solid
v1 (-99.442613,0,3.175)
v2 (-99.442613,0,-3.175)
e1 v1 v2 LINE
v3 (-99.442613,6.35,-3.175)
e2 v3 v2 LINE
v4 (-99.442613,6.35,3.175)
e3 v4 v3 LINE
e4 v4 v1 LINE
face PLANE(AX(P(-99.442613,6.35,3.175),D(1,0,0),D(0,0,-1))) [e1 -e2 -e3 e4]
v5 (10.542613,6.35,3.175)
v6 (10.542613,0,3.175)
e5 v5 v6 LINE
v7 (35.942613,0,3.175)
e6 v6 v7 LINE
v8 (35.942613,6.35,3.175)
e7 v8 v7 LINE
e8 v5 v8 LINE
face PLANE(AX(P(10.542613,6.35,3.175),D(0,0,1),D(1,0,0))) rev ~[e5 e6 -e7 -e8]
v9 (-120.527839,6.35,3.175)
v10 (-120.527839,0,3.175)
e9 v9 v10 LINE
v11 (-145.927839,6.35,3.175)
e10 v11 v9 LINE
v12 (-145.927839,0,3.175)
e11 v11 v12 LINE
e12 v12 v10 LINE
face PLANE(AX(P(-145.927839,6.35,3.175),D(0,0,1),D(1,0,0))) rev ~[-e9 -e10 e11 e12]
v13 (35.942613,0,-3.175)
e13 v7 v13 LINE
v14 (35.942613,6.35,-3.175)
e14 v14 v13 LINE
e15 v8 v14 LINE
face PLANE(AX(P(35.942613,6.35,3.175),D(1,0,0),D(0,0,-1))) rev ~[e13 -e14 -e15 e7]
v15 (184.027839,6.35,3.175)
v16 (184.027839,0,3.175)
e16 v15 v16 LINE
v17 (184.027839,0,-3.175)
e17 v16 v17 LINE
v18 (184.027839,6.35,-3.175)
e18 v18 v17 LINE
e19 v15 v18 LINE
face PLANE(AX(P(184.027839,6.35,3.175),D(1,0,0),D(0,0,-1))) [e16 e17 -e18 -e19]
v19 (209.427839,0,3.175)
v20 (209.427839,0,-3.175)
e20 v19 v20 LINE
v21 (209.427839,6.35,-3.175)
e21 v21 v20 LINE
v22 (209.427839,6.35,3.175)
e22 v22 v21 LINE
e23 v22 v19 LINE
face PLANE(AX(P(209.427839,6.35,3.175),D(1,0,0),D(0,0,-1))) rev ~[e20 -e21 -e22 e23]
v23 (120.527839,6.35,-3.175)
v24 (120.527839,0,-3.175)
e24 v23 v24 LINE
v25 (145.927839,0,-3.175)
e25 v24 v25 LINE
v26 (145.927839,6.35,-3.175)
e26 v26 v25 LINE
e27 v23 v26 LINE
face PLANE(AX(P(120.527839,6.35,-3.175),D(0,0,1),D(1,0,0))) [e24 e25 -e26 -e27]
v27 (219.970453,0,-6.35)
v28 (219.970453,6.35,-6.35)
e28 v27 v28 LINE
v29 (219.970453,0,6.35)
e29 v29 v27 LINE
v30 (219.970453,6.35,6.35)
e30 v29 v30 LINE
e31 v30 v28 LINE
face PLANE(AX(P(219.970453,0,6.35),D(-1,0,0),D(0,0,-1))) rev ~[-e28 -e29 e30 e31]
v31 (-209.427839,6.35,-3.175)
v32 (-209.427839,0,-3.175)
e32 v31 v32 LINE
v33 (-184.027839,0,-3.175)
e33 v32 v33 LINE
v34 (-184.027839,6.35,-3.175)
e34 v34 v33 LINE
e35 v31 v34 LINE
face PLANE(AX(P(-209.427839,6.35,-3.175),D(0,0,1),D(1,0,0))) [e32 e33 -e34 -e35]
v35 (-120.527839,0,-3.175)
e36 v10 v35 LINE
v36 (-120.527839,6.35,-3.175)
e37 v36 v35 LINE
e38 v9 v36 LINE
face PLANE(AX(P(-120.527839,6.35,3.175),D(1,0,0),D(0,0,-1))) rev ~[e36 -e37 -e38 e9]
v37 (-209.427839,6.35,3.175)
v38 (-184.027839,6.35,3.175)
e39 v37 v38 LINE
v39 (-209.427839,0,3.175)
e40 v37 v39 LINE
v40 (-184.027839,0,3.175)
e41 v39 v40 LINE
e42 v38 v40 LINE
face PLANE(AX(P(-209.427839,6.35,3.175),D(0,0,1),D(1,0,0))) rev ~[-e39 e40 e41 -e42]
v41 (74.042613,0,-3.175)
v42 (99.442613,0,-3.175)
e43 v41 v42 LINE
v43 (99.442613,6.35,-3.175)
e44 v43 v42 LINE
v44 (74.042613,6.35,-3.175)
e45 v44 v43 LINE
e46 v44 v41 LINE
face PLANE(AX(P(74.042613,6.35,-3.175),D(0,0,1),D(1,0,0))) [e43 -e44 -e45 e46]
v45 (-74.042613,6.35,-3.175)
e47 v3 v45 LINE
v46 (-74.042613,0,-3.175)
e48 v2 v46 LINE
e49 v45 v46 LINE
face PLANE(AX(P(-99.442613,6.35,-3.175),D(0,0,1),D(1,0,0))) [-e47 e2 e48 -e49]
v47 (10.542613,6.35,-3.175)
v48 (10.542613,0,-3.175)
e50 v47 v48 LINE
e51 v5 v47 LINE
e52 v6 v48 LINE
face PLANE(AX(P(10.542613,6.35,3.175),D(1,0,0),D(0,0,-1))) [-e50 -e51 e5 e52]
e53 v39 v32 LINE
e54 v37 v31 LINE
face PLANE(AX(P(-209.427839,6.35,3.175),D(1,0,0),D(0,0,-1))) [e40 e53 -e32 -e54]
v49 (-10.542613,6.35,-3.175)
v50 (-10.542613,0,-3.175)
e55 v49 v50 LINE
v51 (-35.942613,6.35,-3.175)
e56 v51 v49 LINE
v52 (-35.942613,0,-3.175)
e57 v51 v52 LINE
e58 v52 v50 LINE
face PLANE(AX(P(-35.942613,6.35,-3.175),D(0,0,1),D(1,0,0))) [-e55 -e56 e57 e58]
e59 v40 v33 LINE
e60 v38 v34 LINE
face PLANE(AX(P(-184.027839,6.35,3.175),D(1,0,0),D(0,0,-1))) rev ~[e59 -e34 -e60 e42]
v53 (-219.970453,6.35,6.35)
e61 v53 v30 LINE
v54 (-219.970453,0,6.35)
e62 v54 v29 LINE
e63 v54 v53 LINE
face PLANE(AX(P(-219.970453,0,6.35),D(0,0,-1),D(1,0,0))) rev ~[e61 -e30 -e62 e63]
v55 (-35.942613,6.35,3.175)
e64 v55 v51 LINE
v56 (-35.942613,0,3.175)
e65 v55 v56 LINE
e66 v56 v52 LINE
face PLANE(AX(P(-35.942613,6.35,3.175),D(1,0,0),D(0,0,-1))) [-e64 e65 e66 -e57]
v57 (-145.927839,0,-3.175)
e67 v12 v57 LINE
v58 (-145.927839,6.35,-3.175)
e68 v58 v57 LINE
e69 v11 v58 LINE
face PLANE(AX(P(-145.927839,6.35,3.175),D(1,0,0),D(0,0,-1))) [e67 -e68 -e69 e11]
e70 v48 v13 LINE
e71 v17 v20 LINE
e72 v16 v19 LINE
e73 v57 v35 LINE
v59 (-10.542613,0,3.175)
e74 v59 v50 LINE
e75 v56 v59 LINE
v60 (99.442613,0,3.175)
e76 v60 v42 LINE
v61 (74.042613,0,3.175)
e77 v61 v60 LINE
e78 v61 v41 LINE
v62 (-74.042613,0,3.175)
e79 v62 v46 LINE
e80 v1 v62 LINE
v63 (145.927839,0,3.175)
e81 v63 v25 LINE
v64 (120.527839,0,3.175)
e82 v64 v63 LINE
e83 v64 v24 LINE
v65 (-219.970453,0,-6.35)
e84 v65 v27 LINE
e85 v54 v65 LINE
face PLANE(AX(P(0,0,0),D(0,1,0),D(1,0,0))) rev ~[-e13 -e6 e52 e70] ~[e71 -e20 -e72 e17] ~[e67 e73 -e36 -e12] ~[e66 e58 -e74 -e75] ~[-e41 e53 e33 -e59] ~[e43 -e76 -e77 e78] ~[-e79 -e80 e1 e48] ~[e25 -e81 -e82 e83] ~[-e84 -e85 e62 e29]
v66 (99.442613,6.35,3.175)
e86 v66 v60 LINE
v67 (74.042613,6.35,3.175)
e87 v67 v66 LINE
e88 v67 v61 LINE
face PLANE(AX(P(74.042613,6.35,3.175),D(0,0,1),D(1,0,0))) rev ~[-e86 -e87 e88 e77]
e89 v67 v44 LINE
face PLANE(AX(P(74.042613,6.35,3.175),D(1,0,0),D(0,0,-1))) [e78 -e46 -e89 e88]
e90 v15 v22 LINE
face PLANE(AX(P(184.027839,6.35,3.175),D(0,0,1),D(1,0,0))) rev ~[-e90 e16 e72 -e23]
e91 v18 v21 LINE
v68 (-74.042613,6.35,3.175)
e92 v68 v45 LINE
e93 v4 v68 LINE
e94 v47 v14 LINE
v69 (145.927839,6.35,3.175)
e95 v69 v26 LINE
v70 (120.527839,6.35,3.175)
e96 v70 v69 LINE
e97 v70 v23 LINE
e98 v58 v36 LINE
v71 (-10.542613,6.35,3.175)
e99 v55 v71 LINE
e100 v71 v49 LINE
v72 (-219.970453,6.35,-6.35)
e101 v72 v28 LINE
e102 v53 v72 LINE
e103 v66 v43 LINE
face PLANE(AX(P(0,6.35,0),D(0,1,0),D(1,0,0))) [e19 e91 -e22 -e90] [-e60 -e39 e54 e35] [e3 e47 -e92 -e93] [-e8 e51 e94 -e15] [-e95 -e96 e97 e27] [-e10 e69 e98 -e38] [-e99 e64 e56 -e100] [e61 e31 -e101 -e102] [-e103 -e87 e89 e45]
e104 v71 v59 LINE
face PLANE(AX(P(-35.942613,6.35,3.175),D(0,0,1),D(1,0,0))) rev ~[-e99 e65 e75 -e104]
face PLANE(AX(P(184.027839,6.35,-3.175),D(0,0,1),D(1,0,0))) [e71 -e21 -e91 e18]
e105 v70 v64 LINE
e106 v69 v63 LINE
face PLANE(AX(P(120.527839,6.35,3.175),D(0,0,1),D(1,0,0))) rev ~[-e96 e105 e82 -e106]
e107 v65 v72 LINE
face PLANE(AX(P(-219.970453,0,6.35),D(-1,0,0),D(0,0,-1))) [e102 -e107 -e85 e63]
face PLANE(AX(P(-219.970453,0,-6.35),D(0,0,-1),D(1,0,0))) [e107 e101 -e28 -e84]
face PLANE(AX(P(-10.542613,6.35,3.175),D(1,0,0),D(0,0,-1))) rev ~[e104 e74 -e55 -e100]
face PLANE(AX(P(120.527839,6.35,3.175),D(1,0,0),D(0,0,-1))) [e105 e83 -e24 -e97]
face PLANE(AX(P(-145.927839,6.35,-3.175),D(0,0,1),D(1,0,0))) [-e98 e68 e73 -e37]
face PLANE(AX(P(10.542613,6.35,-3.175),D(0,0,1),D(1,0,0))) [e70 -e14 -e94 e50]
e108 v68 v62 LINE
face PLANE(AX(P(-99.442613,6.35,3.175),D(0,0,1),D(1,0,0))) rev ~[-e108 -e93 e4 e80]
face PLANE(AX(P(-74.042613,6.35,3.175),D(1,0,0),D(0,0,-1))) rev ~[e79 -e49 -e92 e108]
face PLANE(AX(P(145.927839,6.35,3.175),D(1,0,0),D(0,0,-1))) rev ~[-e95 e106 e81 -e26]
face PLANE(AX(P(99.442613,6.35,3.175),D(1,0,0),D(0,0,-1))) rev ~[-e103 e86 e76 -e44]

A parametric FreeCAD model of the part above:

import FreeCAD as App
import Part
import Sketcher

V = App.Vector
Q = App.Units.Quantity


def add_polygon(sketch, points):
    """Adds a closed chain of lines whose ends are joined by coincident constraints."""
    first, n = sketch.GeometryCount, len(points)
    for a, b in zip(points, points[1:] + points[:1]):
        sketch.addGeometry(Part.LineSegment(App.Vector(*a, 0), App.Vector(*b, 0)), False)
    for i in range(n):
        sketch.addConstraint(Sketcher.Constraint("Coincident", first + i, 2, first + (i + 1) % n, 1))

doc = App.newDocument("Part")
body = doc.addObject("PartDesign::Body", "Body")

sketch1 = body.newObject("Sketcher::SketchObject", "Sketch")
sketch1.AttachmentSupport = (doc.getObject("XZ_Plane"), [""])
sketch1.MapMode = "FlatFace"
add_polygon(sketch1, [(-219.970453, -6.35), (-219.970453, 6.35), (219.970453, 6.35), (219.970453, -6.35)])
sketch1.addConstraint(Sketcher.Constraint("Vertical", 0))
sketch1.addConstraint(Sketcher.Constraint("Horizontal", 1))
sketch1.addConstraint(Sketcher.Constraint("Vertical", 2))
sketch1.addConstraint(Sketcher.Constraint("Horizontal", 3))
sketch1.addConstraint(Sketcher.Constraint("Symmetric", 0, 2, 2, 2, -1, 1))
sketch1.addConstraint(Sketcher.Constraint("DistanceY", 0, 1, 0, 2, Q("0.5 in")))
sketch1.addConstraint(Sketcher.Constraint("DistanceX", 1, 1, 1, 2, Q("439.940905 mm")))
pad1 = body.newObject("PartDesign::Pad", "Pad")
pad1.Profile = sketch1
pad1.Length = Q("0.25 in")
pad1.Reversed = True

sketch2 = body.newObject("Sketcher::SketchObject", "Sketch001")
sketch2.AttachmentSupport = (doc.getObject("XZ_Plane"), [""])
sketch2.MapMode = "FlatFace"
sketch2.AttachmentOffset = App.Placement(V(0, 0, -0.25 * 25.4), App.Rotation())
add_polygon(sketch2, [(-35.942613, -3.175), (-35.942613, 3.175), (-10.542613, 3.175), (-10.542613, -3.175)])
add_polygon(sketch2, [(10.542613, -3.175), (10.542613, 3.175), (35.942613, 3.175), (35.942613, -3.175)])
add_polygon(sketch2, [(-99.442613, -3.175), (-99.442613, 3.175), (-74.042613, 3.175), (-74.042613, -3.175)])
add_polygon(sketch2, [(74.042613, -3.175), (74.042613, 3.175), (99.442613, 3.175), (99.442613, -3.175)])
sketch2.addConstraint(Sketcher.Constraint("Vertical", 0))
sketch2.addConstraint(Sketcher.Constraint("Horizontal", 1))
sketch2.addConstraint(Sketcher.Constraint("Vertical", 2))
sketch2.addConstraint(Sketcher.Constraint("Horizontal", 3))
sketch2.addConstraint(Sketcher.Constraint("Vertical", 4))
sketch2.addConstraint(Sketcher.Constraint("Horizontal", 5))
sketch2.addConstraint(Sketcher.Constraint("Vertical", 6))
sketch2.addConstraint(Sketcher.Constraint("Horizontal", 7))
sketch2.addConstraint(Sketcher.Constraint("Vertical", 8))
sketch2.addConstraint(Sketcher.Constraint("Horizontal", 9))
sketch2.addConstraint(Sketcher.Constraint("Vertical", 10))
sketch2.addConstraint(Sketcher.Constraint("Horizontal", 11))
sketch2.addConstraint(Sketcher.Constraint("Vertical", 12))
sketch2.addConstraint(Sketcher.Constraint("Horizontal", 13))
sketch2.addConstraint(Sketcher.Constraint("Vertical", 14))
sketch2.addConstraint(Sketcher.Constraint("Horizontal", 15))
sketch2.addConstraint(Sketcher.Constraint("Symmetric", 2, 2, 4, 2, -1, 1))
sketch2.addConstraint(Sketcher.Constraint("Symmetric", 0, 2, 6, 2, -1, 1))
sketch2.addConstraint(Sketcher.Constraint("Symmetric", 10, 2, 12, 2, -1, 1))
sketch2.addConstraint(Sketcher.Constraint("Symmetric", 8, 2, 14, 2, -1, 1))
sketch2.addConstraint(Sketcher.Constraint("Horizontal", 1, 2, 4, 2))
sketch2.addConstraint(Sketcher.Constraint("Horizontal", 5, 2, 8, 2))
sketch2.addConstraint(Sketcher.Constraint("Horizontal", 7, 2, 10, 2))
sketch2.addConstraint(Sketcher.Constraint("Equal", 7, 9))
sketch2.addConstraint(Sketcher.Constraint("DistanceX", 1, 1, 1, 2, Q("1 in")))
sketch2.addConstraint(Sketcher.Constraint("DistanceY", 0, 1, 0, 2, Q("0.25 in")))
sketch2.addConstraint(Sketcher.Constraint("DistanceX", 8, 2, 0, 2, Q("2.5 in")))
sketch2.addConstraint(Sketcher.Constraint("DistanceX", 0, 2, -1, 1, Q("35.942613 mm")))
pocket1 = body.newObject("PartDesign::Pocket", "Pocket")
pocket1.Profile = sketch2
pocket1.Type = "ThroughAll"
pocket1.Reversed = True
doc.recompute()

linearpattern = body.newObject("PartDesign::LinearPattern", "LinearPattern")
linearpattern.Originals = [pocket1]
linearpattern.Direction = (doc.getObject("X_Axis"), [""])
linearpattern.Mode = "offset"
linearpattern.Offset = 219.970453
linearpattern.Occurrences = 2
body.Tip = linearpattern
doc.recompute()

linearpattern2 = body.newObject("PartDesign::LinearPattern", "LinearPattern001")
linearpattern2.Originals = [pocket1]
linearpattern2.Direction = (doc.getObject("X_Axis"), [""])
linearpattern2.Mode = "offset"
linearpattern2.Offset = 219.970453
linearpattern2.Occurrences = 2
linearpattern2.Reversed = True
body.Tip = linearpattern2

doc.recompute()
